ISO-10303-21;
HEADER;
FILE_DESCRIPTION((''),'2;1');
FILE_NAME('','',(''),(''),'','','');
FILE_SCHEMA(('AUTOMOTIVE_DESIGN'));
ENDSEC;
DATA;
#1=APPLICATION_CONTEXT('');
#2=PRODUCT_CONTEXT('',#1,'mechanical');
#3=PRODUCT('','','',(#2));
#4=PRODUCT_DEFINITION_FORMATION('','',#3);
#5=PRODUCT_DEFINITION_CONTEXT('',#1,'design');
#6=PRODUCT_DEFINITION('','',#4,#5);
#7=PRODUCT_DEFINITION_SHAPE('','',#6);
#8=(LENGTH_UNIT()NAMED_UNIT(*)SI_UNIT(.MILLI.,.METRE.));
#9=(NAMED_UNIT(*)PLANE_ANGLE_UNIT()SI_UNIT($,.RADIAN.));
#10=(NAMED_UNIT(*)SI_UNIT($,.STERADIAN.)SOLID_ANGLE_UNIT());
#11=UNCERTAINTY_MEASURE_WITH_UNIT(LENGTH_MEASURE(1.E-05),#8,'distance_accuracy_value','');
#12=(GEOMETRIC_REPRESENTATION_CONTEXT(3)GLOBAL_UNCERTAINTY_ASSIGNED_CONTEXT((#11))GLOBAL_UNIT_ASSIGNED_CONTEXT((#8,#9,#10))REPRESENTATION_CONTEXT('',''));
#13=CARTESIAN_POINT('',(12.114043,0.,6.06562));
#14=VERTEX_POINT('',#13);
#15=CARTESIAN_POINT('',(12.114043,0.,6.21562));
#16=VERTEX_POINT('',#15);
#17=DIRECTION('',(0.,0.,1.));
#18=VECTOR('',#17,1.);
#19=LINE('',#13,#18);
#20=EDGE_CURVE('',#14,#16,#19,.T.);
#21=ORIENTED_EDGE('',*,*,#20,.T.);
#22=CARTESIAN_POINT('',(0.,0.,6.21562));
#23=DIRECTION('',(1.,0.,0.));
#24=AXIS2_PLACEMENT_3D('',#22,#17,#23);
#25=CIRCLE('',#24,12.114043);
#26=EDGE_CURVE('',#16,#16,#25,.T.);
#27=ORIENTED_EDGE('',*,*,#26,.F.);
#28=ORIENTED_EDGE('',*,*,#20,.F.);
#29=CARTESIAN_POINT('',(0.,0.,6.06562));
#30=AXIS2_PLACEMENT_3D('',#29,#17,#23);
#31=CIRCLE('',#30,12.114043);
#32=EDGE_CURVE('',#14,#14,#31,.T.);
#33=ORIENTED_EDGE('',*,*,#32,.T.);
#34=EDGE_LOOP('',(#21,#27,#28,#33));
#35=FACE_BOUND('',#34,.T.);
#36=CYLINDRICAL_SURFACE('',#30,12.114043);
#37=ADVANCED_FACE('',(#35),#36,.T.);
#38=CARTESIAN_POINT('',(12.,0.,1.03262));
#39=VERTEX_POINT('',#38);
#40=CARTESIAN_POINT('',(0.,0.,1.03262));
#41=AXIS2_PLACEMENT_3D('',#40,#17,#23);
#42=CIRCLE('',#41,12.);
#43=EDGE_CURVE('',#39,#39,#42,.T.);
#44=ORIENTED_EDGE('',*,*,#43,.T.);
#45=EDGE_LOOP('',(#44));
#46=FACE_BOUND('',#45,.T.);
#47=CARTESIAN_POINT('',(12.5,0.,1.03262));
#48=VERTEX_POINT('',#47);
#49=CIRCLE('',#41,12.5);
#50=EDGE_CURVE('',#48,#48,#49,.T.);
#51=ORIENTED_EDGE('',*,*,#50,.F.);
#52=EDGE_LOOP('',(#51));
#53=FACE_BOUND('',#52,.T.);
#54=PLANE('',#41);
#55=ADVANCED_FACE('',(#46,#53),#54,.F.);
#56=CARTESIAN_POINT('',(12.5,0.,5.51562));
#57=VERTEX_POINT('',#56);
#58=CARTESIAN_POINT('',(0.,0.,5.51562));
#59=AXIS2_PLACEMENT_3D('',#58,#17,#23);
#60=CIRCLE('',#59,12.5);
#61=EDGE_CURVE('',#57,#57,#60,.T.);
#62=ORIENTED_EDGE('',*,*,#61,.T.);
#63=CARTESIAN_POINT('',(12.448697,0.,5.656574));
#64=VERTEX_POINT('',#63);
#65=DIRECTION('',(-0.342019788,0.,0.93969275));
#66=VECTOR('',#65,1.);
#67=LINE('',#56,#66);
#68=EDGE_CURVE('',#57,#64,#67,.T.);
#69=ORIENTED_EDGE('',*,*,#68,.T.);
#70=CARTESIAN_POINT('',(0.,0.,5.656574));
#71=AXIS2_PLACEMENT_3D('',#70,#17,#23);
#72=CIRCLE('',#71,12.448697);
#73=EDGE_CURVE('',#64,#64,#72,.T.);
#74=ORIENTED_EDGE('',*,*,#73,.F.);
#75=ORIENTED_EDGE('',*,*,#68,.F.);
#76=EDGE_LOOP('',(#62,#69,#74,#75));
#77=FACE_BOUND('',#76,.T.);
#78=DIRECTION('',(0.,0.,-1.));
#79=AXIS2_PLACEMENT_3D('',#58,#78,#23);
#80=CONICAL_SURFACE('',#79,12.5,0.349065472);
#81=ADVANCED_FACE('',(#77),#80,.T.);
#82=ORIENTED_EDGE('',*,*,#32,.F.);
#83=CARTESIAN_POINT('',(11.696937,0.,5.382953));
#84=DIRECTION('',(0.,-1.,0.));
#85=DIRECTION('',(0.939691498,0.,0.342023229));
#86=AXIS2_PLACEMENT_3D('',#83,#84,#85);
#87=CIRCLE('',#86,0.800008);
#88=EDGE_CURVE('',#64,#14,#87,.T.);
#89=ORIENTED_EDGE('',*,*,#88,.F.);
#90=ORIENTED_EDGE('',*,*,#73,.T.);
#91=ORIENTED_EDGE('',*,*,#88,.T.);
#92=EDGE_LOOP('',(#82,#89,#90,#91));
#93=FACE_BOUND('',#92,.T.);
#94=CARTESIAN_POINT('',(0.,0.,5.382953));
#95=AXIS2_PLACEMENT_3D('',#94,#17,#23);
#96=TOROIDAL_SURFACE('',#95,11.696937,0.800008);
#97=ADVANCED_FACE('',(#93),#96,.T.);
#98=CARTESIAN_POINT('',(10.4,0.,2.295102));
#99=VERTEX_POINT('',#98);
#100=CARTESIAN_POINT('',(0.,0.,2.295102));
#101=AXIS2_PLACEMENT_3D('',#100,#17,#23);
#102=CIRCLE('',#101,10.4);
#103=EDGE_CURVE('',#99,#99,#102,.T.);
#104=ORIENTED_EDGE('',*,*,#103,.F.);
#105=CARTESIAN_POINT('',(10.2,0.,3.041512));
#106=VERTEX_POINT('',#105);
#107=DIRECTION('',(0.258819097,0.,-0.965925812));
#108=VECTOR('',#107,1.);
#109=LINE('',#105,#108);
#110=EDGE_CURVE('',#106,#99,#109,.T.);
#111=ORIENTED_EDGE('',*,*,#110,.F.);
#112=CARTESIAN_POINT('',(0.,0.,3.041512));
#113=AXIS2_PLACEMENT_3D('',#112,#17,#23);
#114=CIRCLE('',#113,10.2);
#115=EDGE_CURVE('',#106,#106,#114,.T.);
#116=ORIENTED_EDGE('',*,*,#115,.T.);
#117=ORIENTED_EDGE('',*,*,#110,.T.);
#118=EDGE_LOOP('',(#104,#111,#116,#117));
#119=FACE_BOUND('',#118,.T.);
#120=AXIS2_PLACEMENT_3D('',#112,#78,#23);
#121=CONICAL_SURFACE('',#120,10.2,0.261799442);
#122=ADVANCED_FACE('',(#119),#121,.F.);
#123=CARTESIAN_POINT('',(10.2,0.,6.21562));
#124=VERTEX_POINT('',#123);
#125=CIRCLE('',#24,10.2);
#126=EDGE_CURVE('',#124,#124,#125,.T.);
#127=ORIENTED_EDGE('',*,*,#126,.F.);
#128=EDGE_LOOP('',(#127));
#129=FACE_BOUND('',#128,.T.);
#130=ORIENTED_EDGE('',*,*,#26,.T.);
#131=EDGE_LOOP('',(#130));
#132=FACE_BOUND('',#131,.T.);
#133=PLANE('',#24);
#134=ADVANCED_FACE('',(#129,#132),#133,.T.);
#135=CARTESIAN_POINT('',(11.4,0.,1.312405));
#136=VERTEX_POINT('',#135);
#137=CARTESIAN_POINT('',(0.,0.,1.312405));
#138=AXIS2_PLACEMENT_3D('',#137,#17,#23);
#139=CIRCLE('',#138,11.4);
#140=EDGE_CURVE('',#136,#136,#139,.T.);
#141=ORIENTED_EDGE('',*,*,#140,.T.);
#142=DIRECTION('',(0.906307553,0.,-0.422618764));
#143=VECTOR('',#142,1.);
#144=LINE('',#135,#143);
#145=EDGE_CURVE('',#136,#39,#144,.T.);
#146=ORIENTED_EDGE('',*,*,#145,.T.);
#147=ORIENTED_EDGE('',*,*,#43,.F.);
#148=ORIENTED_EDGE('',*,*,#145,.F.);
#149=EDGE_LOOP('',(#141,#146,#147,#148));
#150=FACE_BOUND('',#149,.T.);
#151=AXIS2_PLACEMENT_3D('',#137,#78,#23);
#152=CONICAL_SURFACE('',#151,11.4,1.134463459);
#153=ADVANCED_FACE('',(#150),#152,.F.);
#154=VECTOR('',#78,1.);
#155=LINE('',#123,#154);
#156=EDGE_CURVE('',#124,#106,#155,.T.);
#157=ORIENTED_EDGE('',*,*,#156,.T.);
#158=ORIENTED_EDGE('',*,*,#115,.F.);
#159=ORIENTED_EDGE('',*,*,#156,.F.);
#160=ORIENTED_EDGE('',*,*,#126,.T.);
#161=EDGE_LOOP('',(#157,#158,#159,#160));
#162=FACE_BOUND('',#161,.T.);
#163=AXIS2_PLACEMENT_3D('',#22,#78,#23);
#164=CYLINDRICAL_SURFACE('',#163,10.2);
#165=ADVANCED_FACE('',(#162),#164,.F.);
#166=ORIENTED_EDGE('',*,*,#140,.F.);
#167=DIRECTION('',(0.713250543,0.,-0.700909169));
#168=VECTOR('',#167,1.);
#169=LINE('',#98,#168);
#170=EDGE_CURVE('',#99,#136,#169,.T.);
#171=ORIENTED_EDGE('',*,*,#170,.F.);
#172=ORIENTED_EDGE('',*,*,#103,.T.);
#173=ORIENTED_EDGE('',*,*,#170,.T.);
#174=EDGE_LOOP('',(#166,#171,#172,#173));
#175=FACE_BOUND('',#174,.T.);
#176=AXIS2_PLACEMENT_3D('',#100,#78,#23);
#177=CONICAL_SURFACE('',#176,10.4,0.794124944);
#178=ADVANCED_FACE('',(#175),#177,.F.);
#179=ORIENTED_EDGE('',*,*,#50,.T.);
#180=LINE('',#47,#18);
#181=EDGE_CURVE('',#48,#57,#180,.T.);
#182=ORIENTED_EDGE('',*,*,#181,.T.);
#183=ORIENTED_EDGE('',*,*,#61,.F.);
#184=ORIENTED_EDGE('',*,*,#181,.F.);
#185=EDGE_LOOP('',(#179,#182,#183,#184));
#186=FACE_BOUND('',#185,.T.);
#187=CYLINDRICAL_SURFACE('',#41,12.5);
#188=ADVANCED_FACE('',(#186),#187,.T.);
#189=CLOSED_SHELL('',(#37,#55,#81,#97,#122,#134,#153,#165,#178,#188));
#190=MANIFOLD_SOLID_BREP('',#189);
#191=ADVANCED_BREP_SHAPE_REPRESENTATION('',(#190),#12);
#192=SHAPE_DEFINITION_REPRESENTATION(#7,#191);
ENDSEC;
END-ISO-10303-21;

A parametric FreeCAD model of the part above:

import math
import FreeCAD as App
import Part
import Sketcher
from FreeCAD import Vector
Q = App.Units.Quantity

doc = App.newDocument("Part")
body = doc.addObject("PartDesign::Body", "Body")

sketch1 = body.newObject("Sketcher::SketchObject", "Sketch")
sketch1.AttachmentSupport = (doc.getObject("XZ_Plane"), [""])
sketch1.MapMode = "FlatFace"
sketch1.addGeometry([
    Part.LineSegment(Vector(10.4, 2.3, 0), Vector(11.4, 1.31, 0)),
    Part.LineSegment(Vector(11.4, 1.31, 0), Vector(12, 1.03, 0)),
    Part.LineSegment(Vector(12, 1.03, 0), Vector(12.5, 1.03, 0)),
    Part.LineSegment(Vector(12.5, 1.03, 0), Vector(12.5, 5.52, 0)),
    Part.LineSegment(Vector(12.5, 5.52, 0), Vector(12.45, 5.66, 0)),
    Part.ArcOfCircle(Part.Circle(Vector(11.7, 5.38, 0), Vector(0, 0, 1), 0.8), math.radians(20), math.radians(59)),
    Part.LineSegment(Vector(12.11, 6.07, 0), Vector(12.11, 6.22, 0)),
    Part.LineSegment(Vector(12.11, 6.22, 0), Vector(10.2, 6.22, 0)),
    Part.LineSegment(Vector(10.2, 6.22, 0), Vector(10.2, 3.04, 0)),
    Part.LineSegment(Vector(10.2, 3.04, 0), Vector(10.4, 2.3, 0)),
], False)
sketch1.addConstraint([
    Sketcher.Constraint("Coincident", 0, 2, 1, 1),
    Sketcher.Constraint("Coincident", 1, 2, 2, 1),
    Sketcher.Constraint("Coincident", 2, 2, 3, 1),
    Sketcher.Constraint("Coincident", 3, 2, 4, 1),
    Sketcher.Constraint("Coincident", 4, 2, 5, 1),
    Sketcher.Constraint("Coincident", 5, 2, 6, 1),
    Sketcher.Constraint("Coincident", 6, 2, 7, 1),
    Sketcher.Constraint("Coincident", 7, 2, 8, 1),
    Sketcher.Constraint("Coincident", 8, 2, 9, 1),
    Sketcher.Constraint("Coincident", 9, 2, 0, 1),
    Sketcher.Constraint("Horizontal", 2),
    Sketcher.Constraint("Vertical", 3),
    Sketcher.Constraint("Vertical", 6),
    Sketcher.Constraint("Horizontal", 7),
    Sketcher.Constraint("Vertical", 8),
    Sketcher.Constraint("Angle", 9, Q("-74.999997 deg")),
    Sketcher.Constraint("DistanceX", 2, 1, 2, 2, Q("0.5 mm")),
    Sketcher.Constraint("DistanceX", -1, 1, 1, 2, Q("12 mm")),
    Sketcher.Constraint("Angle", 0, Q("-44.499992 deg")),
    Sketcher.Constraint("DistanceX", 9, 2, 0, 2, Q("1 mm")),
    Sketcher.Constraint("DistanceY", 6, 1, 6, 2, Q("0.15 mm")),
    Sketcher.Constraint("DistanceX", -1, 1, 0, 2, Q("11.4 mm")),
    Sketcher.Constraint("DistanceX", -1, 1, 7, 2, Q("10.2 mm")),
    Sketcher.Constraint("DistanceY", 3, 2, 6, 2, Q("0.7 mm")),
    Sketcher.Constraint("Distance", 4, Q("0.15 mm")),
    Sketcher.Constraint("DistanceY", 3, 1, 3, 2, Q("4.483 mm")),
    Sketcher.Constraint("Radius", 5, Q("0.800008 mm")),
    Sketcher.Constraint("DistanceY", 8, 2, 8, 1, Q("3.174108 mm")),
    Sketcher.Constraint("DistanceY", -1, 1, 9, 2, Q("2.295102 mm")),
    Sketcher.Constraint("DistanceX", 7, 2, 7, 1, Q("1.914043 mm")),
    Sketcher.Constraint("DistanceX", 5, 3, 4, 2, Q("0.75176 mm")),
])
revolution = body.newObject("PartDesign::Revolution", "Revolution")
revolution.Profile = sketch1
revolution.ReferenceAxis = (sketch1, ["V_Axis"])
revolution.Angle = 360

doc.recompute()
